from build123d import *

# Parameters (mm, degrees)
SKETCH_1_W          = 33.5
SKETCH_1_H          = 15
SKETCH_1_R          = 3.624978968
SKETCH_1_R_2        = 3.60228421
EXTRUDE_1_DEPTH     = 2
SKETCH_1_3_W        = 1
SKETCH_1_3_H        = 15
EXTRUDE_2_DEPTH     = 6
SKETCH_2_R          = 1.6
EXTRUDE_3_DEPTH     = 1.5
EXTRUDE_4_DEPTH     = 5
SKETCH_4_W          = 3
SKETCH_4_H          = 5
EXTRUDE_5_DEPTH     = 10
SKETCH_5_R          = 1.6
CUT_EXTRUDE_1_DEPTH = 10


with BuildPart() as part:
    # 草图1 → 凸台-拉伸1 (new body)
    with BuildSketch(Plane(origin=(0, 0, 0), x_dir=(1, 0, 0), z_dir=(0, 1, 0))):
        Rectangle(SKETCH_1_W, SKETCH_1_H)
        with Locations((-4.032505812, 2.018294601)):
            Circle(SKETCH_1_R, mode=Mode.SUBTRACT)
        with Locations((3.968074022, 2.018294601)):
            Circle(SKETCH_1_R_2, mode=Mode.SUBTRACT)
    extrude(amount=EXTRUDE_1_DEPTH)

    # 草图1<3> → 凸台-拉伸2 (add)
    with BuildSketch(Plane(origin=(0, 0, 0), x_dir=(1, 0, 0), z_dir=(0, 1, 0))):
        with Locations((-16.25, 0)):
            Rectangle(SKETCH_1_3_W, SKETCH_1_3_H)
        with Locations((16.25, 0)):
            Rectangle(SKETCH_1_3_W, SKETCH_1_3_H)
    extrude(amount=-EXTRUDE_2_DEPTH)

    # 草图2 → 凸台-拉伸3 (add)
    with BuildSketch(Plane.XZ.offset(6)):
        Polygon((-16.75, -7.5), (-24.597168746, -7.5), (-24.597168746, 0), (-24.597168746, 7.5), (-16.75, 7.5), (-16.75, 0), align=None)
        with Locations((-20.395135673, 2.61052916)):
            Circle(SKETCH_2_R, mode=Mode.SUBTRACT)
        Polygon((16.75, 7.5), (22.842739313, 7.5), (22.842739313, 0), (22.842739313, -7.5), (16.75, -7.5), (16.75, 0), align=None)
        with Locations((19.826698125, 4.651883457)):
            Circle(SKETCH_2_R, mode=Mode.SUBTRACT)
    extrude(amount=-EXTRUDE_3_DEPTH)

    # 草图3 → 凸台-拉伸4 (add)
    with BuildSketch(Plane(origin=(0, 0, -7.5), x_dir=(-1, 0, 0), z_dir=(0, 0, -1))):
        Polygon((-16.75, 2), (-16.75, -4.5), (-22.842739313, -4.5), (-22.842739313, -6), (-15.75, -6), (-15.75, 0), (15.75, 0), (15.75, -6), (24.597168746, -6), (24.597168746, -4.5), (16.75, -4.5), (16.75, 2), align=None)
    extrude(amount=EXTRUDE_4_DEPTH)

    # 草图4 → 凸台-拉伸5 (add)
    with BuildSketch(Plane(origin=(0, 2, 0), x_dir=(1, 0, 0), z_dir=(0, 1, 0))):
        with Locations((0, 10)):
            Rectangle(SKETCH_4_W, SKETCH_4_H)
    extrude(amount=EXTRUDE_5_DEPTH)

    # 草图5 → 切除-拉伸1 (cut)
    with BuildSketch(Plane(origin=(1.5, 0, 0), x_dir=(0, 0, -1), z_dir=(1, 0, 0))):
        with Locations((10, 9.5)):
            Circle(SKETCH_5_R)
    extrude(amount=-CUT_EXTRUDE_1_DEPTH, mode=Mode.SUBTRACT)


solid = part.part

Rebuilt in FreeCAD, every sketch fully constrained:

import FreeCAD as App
import Part
import Sketcher


def add_polygon(sketch, points):
    """Adds a closed chain of lines whose ends are joined by coincident constraints."""
    first, n = sketch.GeometryCount, len(points)
    for a, b in zip(points, points[1:] + points[:1]):
        sketch.addGeometry(Part.LineSegment(App.Vector(*a, 0), App.Vector(*b, 0)), False)
    for i in range(n):
        sketch.addConstraint(Sketcher.Constraint("Coincident", first + i, 2, first + (i + 1) % n, 1))

doc = App.newDocument("Part")
body = doc.addObject("PartDesign::Body", "Body")

# Sketch on XZ plane
sketch1 = body.newObject("Sketcher::SketchObject", "Sketch")
sketch1.AttachmentSupport = (doc.getObject("XZ_Plane"), [""])
sketch1.MapMode = "FlatFace"
add_polygon(sketch1, [(-16.8, -7.5), (-16.8, 7.5), (16.8, 7.5), (16.8, -7.5)])  # lines 0-3
sketch1.addGeometry(Part.Circle(App.Vector(-4, -2, 0), App.Vector(0, 0, 1), 3.6), False)  # 4
sketch1.addGeometry(Part.Circle(App.Vector(4, -2, 0), App.Vector(0, 0, 1), 3.6), False)  # 5
sketch1.addConstraint(Sketcher.Constraint("Vertical", 0))
sketch1.addConstraint(Sketcher.Constraint("Horizontal", 1))
sketch1.addConstraint(Sketcher.Constraint("Vertical", 2))
sketch1.addConstraint(Sketcher.Constraint("Horizontal", 3))
sketch1.addConstraint(Sketcher.Constraint("Symmetric", 0, 2, 2, 2, -1, 1))
sketch1.addConstraint(Sketcher.Constraint("Horizontal", 4, 3, 5, 3))
sketch1.addConstraint(Sketcher.Constraint("DistanceY", 0, 1, 0, 2, 15.0))
sketch1.addConstraint(Sketcher.Constraint("DistanceX", 1, 1, 1, 2, 33.5))
sketch1.addConstraint(Sketcher.Constraint("Diameter", 5, 7.204568))
sketch1.addConstraint(Sketcher.Constraint("Diameter", 4, 7.249958))
sketch1.addConstraint(Sketcher.Constraint("DistanceX", 4, 3, 5, 3, 8.00058))
sketch1.addConstraint(Sketcher.Constraint("DistanceX", 4, 3, -1, 1, 4.032506))
sketch1.addConstraint(Sketcher.Constraint("DistanceY", 4, 3, -1, 1, 2.018295))
pad1 = body.newObject("PartDesign::Pad", "Pad")
pad1.Profile = sketch1
pad1.Length = 2
pad1.Reversed = True

# Sketch on XZ plane
sketch2 = body.newObject("Sketcher::SketchObject", "Sketch001")
sketch2.AttachmentSupport = (doc.getObject("XZ_Plane"), [""])
sketch2.MapMode = "FlatFace"
add_polygon(sketch2, [(-16.8, -7.5), (-16.8, 7.5), (-15.8, 7.5), (-15.8, -7.5)])  # lines 0-3
add_polygon(sketch2, [(15.8, -7.5), (15.8, 7.5), (16.8, 7.5), (16.8, -7.5)])  # lines 4-7
sketch2.addConstraint(Sketcher.Constraint("Vertical", 0))
sketch2.addConstraint(Sketcher.Constraint("Horizontal", 1))
sketch2.addConstraint(Sketcher.Constraint("Vertical", 2))
sketch2.addConstraint(Sketcher.Constraint("Horizontal", 3))
sketch2.addConstraint(Sketcher.Constraint("Vertical", 4))
sketch2.addConstraint(Sketcher.Constraint("Horizontal", 5))
sketch2.addConstraint(Sketcher.Constraint("Vertical", 6))
sketch2.addConstraint(Sketcher.Constraint("Horizontal", 7))
sketch2.addConstraint(Sketcher.Constraint("Symmetric", 2, 2, 4, 2, -1, 1))
sketch2.addConstraint(Sketcher.Constraint("Symmetric", 0, 2, 6, 2, -1, 1))
sketch2.addConstraint(Sketcher.Constraint("Horizontal", 1, 2, 4, 2))
sketch2.addConstraint(Sketcher.Constraint("DistanceX", 1, 1, 1, 2, 1.0))
sketch2.addConstraint(Sketcher.Constraint("DistanceY", 0, 1, 0, 2, 15.0))
sketch2.addConstraint(Sketcher.Constraint("DistanceX", 1, 2, 4, 2, 31.5))
pad2 = body.newObject("PartDesign::Pad", "Pad001")
pad2.Profile = sketch2
pad2.Length = 6

# Sketch on XZ plane
sketch3 = body.newObject("Sketcher::SketchObject", "Sketch002")
sketch3.AttachmentSupport = (doc.getObject("XZ_Plane"), [""])
sketch3.MapMode = "FlatFace"
sketch3.AttachmentOffset = App.Placement(App.Vector(0, 0, 6), App.Rotation())
add_polygon(sketch3, [(-24.6, -7.5), (-16.8, -7.5), (-16.8, 7.5), (-24.6, 7.5)])  # lines 0-3
sketch3.addGeometry(Part.Circle(App.Vector(-20.4, 2.6, 0), App.Vector(0, 0, 1), 1.6), False)  # 4
add_polygon(sketch3, [(22.8, 7.5), (16.8, 7.5), (16.8, -7.5), (22.8, -7.5)])  # lines 5-8
sketch3.addGeometry(Part.Circle(App.Vector(19.8, 4.7, 0), App.Vector(0, 0, 1), 1.6), False)  # 9
sketch3.addConstraint(Sketcher.Constraint("Horizontal", 0))
sketch3.addConstraint(Sketcher.Constraint("Vertical", 1))
sketch3.addConstraint(Sketcher.Constraint("Horizontal", 2))
sketch3.addConstraint(Sketcher.Constraint("Vertical", 3))
sketch3.addConstraint(Sketcher.Constraint("Horizontal", 5))
sketch3.addConstraint(Sketcher.Constraint("Vertical", 6))
sketch3.addConstraint(Sketcher.Constraint("Horizontal", 7))
sketch3.addConstraint(Sketcher.Constraint("Vertical", 8))
sketch3.addConstraint(Sketcher.Constraint("Equal", 4, 9))
sketch3.addConstraint(Sketcher.Constraint("Symmetric", 0, 2, 5, 2, -1, 1))
sketch3.addConstraint(Sketcher.Constraint("Horizontal", 2, 2, 5, 2))
sketch3.addConstraint(Sketcher.Constraint("Horizontal", 3, 2, 6, 2))
sketch3.addConstraint(Sketcher.Constraint("Diameter", 4, 3.2))
sketch3.addConstraint(Sketcher.Constraint("DistanceY", 1, 1, 1, 2, 15.0))
sketch3.addConstraint(Sketcher.Constraint("DistanceX", 1, 2, 5, 2, 33.5))
sketch3.addConstraint(Sketcher.Constraint("DistanceX", 0, 1, 0, 2, 7.847169))
sketch3.addConstraint(Sketcher.Constraint("DistanceX", 5, 2, 5, 1, 6.092739))
sketch3.addConstraint(Sketcher.Constraint("DistanceX", -1, 1, 9, 3, 19.826698))
sketch3.addConstraint(Sketcher.Constraint("DistanceY", -1, 1, 4, 3, 2.610529))
sketch3.addConstraint(Sketcher.Constraint("DistanceX", 4, 3, -1, 1, 20.395136))
sketch3.addConstraint(Sketcher.Constraint("DistanceY", -1, 1, 9, 3, 4.651883))
pad3 = body.newObject("PartDesign::Pad", "Pad002")
pad3.Profile = sketch3
pad3.Length = 1.5
pad3.Reversed = True

# Sketch on XY plane
sketch4 = body.newObject("Sketcher::SketchObject", "Sketch003")
sketch4.AttachmentSupport = (doc.getObject("XY_Plane"), [""])
sketch4.MapMode = "FlatFace"
sketch4.AttachmentOffset = App.Placement(App.Vector(0, 0, -7.5), App.Rotation())
add_polygon(sketch4, [(16.8, 2), (16.8, -4.5), (22.8, -4.5), (22.8, -6), (15.8, -6), (15.8, 0), (-15.8, 0), (-15.8, -6), (-24.6, -6), (-24.6, -4.5), (-16.8, -4.5), (-16.8, 2)])  # lines 0-11
sketch4.addConstraint(Sketcher.Constraint("Vertical", 0))
sketch4.addConstraint(Sketcher.Constraint("Horizontal", 1))
sketch4.addConstraint(Sketcher.Constraint("Vertical", 2))
sketch4.addConstraint(Sketcher.Constraint("Horizontal", 3))
sketch4.addConstraint(Sketcher.Constraint("Vertical", 4))
sketch4.addConstraint(Sketcher.Constraint("Horizontal", 5))
sketch4.addConstraint(Sketcher.Constraint("Vertical", 6))
sketch4.addConstraint(Sketcher.Constraint("Horizontal", 7))
sketch4.addConstraint(Sketcher.Constraint("Vertical", 8))
sketch4.addConstraint(Sketcher.Constraint("Horizontal", 9))
sketch4.addConstraint(Sketcher.Constraint("Vertical", 10))
sketch4.addConstraint(Sketcher.Constraint("Horizontal", 11))
sketch4.addConstraint(Sketcher.Constraint("Symmetric", 4, 2, 5, 2, -1, 1))
sketch4.addConstraint(Sketcher.Constraint("Symmetric", 0, 2, 9, 2, -2))
sketch4.addConstraint(Sketcher.Constraint("Horizontal", 3, 2, 6, 2))
sketch4.addConstraint(Sketcher.Constraint("DistanceY", 4, 1, 4, 2, 6.0))
sketch4.addConstraint(Sketcher.Constraint("DistanceX", 5, 2, 5, 1, 31.5))
sketch4.addConstraint(Sketcher.Constraint("DistanceX", 11, 1, 11, 2, 33.5))
sketch4.addConstraint(Sketcher.Constraint("DistanceY", 0, 2, 0, 1, 6.5))
sketch4.addConstraint(Sketcher.Constraint("DistanceY", 2, 2, 2, 1, 1.5))
sketch4.addConstraint(Sketcher.Constraint("DistanceX", 1, 1, 1, 2, 6.092739))
sketch4.addConstraint(Sketcher.Constraint("DistanceX", 7, 2, 7, 1, 8.847169))
pad4 = body.newObject("PartDesign::Pad", "Pad003")
pad4.Profile = sketch4
pad4.Length = 5
pad4.Reversed = True

# Sketch on XZ plane
sketch5 = body.newObject("Sketcher::SketchObject", "Sketch004")
sketch5.AttachmentSupport = (doc.getObject("XZ_Plane"), [""])
sketch5.MapMode = "FlatFace"
sketch5.AttachmentOffset = App.Placement(App.Vector(0, 0, -2), App.Rotation())
add_polygon(sketch5, [(-1.5, -12.5), (-1.5, -7.5), (1.5, -7.5), (1.5, -12.5)])  # lines 0-3
sketch5.addConstraint(Sketcher.Constraint("Vertical", 0))
sketch5.addConstraint(Sketcher.Constraint("Horizontal", 1))
sketch5.addConstraint(Sketcher.Constraint("Vertical", 2))
sketch5.addConstraint(Sketcher.Constraint("Horizontal", 3))
sketch5.addConstraint(Sketcher.Constraint("DistanceX", 1, 1, 1, 2, 3.0))
sketch5.addConstraint(Sketcher.Constraint("DistanceY", 0, 1, 0, 2, 5.0))
sketch5.addConstraint(Sketcher.Constraint("DistanceX", 0, 2, -1, 1, 1.5))
sketch5.addConstraint(Sketcher.Constraint("DistanceY", 0, 2, -1, 1, 7.5))
pad5 = body.newObject("PartDesign::Pad", "Pad004")
pad5.Profile = sketch5
pad5.Length = 10
pad5.Reversed = True

# Sketch on YZ plane
sketch6 = body.newObject("Sketcher::SketchObject", "Sketch005")
sketch6.AttachmentSupport = (doc.getObject("YZ_Plane"), [""])
sketch6.MapMode = "FlatFace"
sketch6.AttachmentOffset = App.Placement(App.Vector(0, 0, 1.5), App.Rotation())
sketch6.addGeometry(Part.Circle(App.Vector(9.5, -10, 0), App.Vector(0, 0, 1), 1.6), False)
sketch6.addConstraint(Sketcher.Constraint("Diameter", 0, 3.2))
sketch6.addConstraint(Sketcher.Constraint("DistanceY", 0, 3, -1, 1, 10.0))
sketch6.addConstraint(Sketcher.Constraint("DistanceX", -1, 1, 0, 3, 9.5))
pocket1 = body.newObject("PartDesign::Pocket", "Pocket")
pocket1.Profile = sketch6
pocket1.Length = 10

doc.recompute()
